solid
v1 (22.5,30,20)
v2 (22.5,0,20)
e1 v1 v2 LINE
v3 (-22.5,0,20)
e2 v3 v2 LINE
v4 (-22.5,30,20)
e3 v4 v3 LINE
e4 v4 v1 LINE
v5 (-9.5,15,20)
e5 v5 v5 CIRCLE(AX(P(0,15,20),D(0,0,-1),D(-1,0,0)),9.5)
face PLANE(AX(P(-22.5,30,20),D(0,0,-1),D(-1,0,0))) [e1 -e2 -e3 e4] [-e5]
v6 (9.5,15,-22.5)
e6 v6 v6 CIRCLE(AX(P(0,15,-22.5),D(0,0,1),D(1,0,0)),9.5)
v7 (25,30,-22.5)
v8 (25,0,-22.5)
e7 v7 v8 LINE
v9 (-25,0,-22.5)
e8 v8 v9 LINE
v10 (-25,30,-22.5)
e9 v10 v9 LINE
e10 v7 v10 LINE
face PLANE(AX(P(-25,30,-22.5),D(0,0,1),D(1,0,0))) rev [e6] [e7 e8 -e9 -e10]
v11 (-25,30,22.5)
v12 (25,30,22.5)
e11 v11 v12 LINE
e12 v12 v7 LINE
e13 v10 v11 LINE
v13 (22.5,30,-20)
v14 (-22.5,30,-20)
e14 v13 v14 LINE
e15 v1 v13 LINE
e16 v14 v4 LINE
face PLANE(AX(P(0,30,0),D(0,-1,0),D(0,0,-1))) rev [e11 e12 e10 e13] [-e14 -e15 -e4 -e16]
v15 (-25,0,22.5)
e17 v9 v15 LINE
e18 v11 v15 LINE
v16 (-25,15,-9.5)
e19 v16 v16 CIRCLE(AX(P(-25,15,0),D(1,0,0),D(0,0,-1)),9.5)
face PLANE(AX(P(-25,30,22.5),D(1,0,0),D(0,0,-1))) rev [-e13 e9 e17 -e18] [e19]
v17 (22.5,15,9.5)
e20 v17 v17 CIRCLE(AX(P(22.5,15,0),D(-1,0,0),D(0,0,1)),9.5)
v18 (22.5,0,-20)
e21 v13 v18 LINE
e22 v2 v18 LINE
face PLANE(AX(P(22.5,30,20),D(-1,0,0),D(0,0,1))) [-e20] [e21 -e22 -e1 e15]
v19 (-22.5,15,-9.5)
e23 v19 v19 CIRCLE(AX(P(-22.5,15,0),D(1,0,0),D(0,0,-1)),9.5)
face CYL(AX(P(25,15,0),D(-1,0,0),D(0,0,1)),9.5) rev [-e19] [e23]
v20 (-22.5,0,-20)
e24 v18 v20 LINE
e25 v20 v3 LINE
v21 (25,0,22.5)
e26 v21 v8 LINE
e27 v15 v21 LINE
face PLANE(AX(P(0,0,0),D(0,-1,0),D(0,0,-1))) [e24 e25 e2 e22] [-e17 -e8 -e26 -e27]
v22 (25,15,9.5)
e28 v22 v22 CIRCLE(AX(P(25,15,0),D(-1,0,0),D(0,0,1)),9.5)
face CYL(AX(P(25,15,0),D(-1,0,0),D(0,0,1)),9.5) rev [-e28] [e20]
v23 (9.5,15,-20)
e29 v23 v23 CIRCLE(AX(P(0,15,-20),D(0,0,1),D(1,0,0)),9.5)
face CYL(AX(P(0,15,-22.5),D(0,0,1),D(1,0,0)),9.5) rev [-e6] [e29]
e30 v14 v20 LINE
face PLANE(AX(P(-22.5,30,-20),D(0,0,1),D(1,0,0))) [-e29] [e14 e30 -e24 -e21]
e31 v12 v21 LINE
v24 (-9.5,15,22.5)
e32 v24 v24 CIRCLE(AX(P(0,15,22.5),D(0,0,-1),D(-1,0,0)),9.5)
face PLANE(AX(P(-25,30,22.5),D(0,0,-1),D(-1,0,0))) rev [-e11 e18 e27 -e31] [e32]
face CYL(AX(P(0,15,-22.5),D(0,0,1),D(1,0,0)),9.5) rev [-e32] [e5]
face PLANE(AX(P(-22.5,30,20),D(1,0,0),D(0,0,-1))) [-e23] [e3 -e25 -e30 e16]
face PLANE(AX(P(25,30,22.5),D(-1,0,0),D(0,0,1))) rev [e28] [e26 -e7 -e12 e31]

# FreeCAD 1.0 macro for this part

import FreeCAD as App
import Part
import Sketcher

V = App.Vector


def add_polygon(sketch, points):
    """Adds a closed chain of lines whose ends are joined by coincident constraints."""
    first, n = sketch.GeometryCount, len(points)
    for a, b in zip(points, points[1:] + points[:1]):
        sketch.addGeometry(Part.LineSegment(App.Vector(*a, 0), App.Vector(*b, 0)), False)
    for i in range(n):
        sketch.addConstraint(Sketcher.Constraint("Coincident", first + i, 2, first + (i + 1) % n, 1))

doc = App.newDocument("Part")
body = doc.addObject("PartDesign::Body", "Body")

# Sketch on XZ plane
sketch1 = body.newObject("Sketcher::SketchObject", "Sketch")
sketch1.AttachmentSupport = (doc.getObject("XZ_Plane"), [""])
sketch1.MapMode = "FlatFace"
add_polygon(sketch1, [(-25, -22.5), (-25, 22.5), (25, 22.5), (25, -22.5)])  # lines 0-3
add_polygon(sketch1, [(22.5, 20), (-22.5, 20), (-22.5, -20), (22.5, -20)])  # lines 4-7
sketch1.addConstraint(Sketcher.Constraint("Vertical", 0))
sketch1.addConstraint(Sketcher.Constraint("Horizontal", 1))
sketch1.addConstraint(Sketcher.Constraint("Vertical", 2))
sketch1.addConstraint(Sketcher.Constraint("Horizontal", 3))
sketch1.addConstraint(Sketcher.Constraint("Horizontal", 4))
sketch1.addConstraint(Sketcher.Constraint("Vertical", 5))
sketch1.addConstraint(Sketcher.Constraint("Horizontal", 6))
sketch1.addConstraint(Sketcher.Constraint("Vertical", 7))
sketch1.addConstraint(Sketcher.Constraint("Symmetric", 0, 2, 2, 2, -1, 1))
sketch1.addConstraint(Sketcher.Constraint("Symmetric", 4, 2, 6, 2, -1, 1))
sketch1.addConstraint(Sketcher.Constraint("Equal", 6, 0))
sketch1.addConstraint(Sketcher.Constraint("DistanceX", 1, 1, 1, 2, 50.0))
sketch1.addConstraint(Sketcher.Constraint("DistanceX", 4, 2, 4, 1, 45.0))
sketch1.addConstraint(Sketcher.Constraint("DistanceY", 5, 2, 5, 1, 40.0))
pad1 = body.newObject("PartDesign::Pad", "Pad")
pad1.Profile = sketch1
pad1.Length = 30
pad1.Reversed = True

# Sketch on XY plane
sketch2 = body.newObject("Sketcher::SketchObject", "Sketch001")
sketch2.AttachmentSupport = (doc.getObject("XY_Plane"), [""])
sketch2.MapMode = "FlatFace"
sketch2.AttachmentOffset = App.Placement(V(0, 0, 22.5), App.Rotation())
sketch2.addGeometry(Part.Circle(V(0, 15, 0), V(0, 0, 1), 9.5), False)
sketch2.addConstraint(Sketcher.Constraint("PointOnObject", 0, 3, -2))
sketch2.addConstraint(Sketcher.Constraint("Diameter", 0, 19.0))
sketch2.addConstraint(Sketcher.Constraint("DistanceY", -1, 1, 0, 3, 15.0))
pocket1 = body.newObject("PartDesign::Pocket", "Pocket")
pocket1.Profile = sketch2
pocket1.Type = "ThroughAll"
pocket1.Midplane = True

# Sketch on YZ plane
sketch3 = body.newObject("Sketcher::SketchObject", "Sketch002")
sketch3.AttachmentSupport = (doc.getObject("YZ_Plane"), [""])
sketch3.MapMode = "FlatFace"
sketch3.AttachmentOffset = App.Placement(V(0, 0, -25), App.Rotation())
sketch3.addGeometry(Part.Circle(V(15, 0, 0), V(0, 0, 1), 9.5), False)
sketch3.addConstraint(Sketcher.Constraint("PointOnObject", 0, 3, -1))
sketch3.addConstraint(Sketcher.Constraint("Diameter", 0, 19.0))
sketch3.addConstraint(Sketcher.Constraint("DistanceX", -1, 1, 0, 3, 15.0))
pocket2 = body.newObject("PartDesign::Pocket", "Pocket001")
pocket2.Profile = sketch3
pocket2.Type = "ThroughAll"
pocket2.Midplane = True

doc.recompute()
